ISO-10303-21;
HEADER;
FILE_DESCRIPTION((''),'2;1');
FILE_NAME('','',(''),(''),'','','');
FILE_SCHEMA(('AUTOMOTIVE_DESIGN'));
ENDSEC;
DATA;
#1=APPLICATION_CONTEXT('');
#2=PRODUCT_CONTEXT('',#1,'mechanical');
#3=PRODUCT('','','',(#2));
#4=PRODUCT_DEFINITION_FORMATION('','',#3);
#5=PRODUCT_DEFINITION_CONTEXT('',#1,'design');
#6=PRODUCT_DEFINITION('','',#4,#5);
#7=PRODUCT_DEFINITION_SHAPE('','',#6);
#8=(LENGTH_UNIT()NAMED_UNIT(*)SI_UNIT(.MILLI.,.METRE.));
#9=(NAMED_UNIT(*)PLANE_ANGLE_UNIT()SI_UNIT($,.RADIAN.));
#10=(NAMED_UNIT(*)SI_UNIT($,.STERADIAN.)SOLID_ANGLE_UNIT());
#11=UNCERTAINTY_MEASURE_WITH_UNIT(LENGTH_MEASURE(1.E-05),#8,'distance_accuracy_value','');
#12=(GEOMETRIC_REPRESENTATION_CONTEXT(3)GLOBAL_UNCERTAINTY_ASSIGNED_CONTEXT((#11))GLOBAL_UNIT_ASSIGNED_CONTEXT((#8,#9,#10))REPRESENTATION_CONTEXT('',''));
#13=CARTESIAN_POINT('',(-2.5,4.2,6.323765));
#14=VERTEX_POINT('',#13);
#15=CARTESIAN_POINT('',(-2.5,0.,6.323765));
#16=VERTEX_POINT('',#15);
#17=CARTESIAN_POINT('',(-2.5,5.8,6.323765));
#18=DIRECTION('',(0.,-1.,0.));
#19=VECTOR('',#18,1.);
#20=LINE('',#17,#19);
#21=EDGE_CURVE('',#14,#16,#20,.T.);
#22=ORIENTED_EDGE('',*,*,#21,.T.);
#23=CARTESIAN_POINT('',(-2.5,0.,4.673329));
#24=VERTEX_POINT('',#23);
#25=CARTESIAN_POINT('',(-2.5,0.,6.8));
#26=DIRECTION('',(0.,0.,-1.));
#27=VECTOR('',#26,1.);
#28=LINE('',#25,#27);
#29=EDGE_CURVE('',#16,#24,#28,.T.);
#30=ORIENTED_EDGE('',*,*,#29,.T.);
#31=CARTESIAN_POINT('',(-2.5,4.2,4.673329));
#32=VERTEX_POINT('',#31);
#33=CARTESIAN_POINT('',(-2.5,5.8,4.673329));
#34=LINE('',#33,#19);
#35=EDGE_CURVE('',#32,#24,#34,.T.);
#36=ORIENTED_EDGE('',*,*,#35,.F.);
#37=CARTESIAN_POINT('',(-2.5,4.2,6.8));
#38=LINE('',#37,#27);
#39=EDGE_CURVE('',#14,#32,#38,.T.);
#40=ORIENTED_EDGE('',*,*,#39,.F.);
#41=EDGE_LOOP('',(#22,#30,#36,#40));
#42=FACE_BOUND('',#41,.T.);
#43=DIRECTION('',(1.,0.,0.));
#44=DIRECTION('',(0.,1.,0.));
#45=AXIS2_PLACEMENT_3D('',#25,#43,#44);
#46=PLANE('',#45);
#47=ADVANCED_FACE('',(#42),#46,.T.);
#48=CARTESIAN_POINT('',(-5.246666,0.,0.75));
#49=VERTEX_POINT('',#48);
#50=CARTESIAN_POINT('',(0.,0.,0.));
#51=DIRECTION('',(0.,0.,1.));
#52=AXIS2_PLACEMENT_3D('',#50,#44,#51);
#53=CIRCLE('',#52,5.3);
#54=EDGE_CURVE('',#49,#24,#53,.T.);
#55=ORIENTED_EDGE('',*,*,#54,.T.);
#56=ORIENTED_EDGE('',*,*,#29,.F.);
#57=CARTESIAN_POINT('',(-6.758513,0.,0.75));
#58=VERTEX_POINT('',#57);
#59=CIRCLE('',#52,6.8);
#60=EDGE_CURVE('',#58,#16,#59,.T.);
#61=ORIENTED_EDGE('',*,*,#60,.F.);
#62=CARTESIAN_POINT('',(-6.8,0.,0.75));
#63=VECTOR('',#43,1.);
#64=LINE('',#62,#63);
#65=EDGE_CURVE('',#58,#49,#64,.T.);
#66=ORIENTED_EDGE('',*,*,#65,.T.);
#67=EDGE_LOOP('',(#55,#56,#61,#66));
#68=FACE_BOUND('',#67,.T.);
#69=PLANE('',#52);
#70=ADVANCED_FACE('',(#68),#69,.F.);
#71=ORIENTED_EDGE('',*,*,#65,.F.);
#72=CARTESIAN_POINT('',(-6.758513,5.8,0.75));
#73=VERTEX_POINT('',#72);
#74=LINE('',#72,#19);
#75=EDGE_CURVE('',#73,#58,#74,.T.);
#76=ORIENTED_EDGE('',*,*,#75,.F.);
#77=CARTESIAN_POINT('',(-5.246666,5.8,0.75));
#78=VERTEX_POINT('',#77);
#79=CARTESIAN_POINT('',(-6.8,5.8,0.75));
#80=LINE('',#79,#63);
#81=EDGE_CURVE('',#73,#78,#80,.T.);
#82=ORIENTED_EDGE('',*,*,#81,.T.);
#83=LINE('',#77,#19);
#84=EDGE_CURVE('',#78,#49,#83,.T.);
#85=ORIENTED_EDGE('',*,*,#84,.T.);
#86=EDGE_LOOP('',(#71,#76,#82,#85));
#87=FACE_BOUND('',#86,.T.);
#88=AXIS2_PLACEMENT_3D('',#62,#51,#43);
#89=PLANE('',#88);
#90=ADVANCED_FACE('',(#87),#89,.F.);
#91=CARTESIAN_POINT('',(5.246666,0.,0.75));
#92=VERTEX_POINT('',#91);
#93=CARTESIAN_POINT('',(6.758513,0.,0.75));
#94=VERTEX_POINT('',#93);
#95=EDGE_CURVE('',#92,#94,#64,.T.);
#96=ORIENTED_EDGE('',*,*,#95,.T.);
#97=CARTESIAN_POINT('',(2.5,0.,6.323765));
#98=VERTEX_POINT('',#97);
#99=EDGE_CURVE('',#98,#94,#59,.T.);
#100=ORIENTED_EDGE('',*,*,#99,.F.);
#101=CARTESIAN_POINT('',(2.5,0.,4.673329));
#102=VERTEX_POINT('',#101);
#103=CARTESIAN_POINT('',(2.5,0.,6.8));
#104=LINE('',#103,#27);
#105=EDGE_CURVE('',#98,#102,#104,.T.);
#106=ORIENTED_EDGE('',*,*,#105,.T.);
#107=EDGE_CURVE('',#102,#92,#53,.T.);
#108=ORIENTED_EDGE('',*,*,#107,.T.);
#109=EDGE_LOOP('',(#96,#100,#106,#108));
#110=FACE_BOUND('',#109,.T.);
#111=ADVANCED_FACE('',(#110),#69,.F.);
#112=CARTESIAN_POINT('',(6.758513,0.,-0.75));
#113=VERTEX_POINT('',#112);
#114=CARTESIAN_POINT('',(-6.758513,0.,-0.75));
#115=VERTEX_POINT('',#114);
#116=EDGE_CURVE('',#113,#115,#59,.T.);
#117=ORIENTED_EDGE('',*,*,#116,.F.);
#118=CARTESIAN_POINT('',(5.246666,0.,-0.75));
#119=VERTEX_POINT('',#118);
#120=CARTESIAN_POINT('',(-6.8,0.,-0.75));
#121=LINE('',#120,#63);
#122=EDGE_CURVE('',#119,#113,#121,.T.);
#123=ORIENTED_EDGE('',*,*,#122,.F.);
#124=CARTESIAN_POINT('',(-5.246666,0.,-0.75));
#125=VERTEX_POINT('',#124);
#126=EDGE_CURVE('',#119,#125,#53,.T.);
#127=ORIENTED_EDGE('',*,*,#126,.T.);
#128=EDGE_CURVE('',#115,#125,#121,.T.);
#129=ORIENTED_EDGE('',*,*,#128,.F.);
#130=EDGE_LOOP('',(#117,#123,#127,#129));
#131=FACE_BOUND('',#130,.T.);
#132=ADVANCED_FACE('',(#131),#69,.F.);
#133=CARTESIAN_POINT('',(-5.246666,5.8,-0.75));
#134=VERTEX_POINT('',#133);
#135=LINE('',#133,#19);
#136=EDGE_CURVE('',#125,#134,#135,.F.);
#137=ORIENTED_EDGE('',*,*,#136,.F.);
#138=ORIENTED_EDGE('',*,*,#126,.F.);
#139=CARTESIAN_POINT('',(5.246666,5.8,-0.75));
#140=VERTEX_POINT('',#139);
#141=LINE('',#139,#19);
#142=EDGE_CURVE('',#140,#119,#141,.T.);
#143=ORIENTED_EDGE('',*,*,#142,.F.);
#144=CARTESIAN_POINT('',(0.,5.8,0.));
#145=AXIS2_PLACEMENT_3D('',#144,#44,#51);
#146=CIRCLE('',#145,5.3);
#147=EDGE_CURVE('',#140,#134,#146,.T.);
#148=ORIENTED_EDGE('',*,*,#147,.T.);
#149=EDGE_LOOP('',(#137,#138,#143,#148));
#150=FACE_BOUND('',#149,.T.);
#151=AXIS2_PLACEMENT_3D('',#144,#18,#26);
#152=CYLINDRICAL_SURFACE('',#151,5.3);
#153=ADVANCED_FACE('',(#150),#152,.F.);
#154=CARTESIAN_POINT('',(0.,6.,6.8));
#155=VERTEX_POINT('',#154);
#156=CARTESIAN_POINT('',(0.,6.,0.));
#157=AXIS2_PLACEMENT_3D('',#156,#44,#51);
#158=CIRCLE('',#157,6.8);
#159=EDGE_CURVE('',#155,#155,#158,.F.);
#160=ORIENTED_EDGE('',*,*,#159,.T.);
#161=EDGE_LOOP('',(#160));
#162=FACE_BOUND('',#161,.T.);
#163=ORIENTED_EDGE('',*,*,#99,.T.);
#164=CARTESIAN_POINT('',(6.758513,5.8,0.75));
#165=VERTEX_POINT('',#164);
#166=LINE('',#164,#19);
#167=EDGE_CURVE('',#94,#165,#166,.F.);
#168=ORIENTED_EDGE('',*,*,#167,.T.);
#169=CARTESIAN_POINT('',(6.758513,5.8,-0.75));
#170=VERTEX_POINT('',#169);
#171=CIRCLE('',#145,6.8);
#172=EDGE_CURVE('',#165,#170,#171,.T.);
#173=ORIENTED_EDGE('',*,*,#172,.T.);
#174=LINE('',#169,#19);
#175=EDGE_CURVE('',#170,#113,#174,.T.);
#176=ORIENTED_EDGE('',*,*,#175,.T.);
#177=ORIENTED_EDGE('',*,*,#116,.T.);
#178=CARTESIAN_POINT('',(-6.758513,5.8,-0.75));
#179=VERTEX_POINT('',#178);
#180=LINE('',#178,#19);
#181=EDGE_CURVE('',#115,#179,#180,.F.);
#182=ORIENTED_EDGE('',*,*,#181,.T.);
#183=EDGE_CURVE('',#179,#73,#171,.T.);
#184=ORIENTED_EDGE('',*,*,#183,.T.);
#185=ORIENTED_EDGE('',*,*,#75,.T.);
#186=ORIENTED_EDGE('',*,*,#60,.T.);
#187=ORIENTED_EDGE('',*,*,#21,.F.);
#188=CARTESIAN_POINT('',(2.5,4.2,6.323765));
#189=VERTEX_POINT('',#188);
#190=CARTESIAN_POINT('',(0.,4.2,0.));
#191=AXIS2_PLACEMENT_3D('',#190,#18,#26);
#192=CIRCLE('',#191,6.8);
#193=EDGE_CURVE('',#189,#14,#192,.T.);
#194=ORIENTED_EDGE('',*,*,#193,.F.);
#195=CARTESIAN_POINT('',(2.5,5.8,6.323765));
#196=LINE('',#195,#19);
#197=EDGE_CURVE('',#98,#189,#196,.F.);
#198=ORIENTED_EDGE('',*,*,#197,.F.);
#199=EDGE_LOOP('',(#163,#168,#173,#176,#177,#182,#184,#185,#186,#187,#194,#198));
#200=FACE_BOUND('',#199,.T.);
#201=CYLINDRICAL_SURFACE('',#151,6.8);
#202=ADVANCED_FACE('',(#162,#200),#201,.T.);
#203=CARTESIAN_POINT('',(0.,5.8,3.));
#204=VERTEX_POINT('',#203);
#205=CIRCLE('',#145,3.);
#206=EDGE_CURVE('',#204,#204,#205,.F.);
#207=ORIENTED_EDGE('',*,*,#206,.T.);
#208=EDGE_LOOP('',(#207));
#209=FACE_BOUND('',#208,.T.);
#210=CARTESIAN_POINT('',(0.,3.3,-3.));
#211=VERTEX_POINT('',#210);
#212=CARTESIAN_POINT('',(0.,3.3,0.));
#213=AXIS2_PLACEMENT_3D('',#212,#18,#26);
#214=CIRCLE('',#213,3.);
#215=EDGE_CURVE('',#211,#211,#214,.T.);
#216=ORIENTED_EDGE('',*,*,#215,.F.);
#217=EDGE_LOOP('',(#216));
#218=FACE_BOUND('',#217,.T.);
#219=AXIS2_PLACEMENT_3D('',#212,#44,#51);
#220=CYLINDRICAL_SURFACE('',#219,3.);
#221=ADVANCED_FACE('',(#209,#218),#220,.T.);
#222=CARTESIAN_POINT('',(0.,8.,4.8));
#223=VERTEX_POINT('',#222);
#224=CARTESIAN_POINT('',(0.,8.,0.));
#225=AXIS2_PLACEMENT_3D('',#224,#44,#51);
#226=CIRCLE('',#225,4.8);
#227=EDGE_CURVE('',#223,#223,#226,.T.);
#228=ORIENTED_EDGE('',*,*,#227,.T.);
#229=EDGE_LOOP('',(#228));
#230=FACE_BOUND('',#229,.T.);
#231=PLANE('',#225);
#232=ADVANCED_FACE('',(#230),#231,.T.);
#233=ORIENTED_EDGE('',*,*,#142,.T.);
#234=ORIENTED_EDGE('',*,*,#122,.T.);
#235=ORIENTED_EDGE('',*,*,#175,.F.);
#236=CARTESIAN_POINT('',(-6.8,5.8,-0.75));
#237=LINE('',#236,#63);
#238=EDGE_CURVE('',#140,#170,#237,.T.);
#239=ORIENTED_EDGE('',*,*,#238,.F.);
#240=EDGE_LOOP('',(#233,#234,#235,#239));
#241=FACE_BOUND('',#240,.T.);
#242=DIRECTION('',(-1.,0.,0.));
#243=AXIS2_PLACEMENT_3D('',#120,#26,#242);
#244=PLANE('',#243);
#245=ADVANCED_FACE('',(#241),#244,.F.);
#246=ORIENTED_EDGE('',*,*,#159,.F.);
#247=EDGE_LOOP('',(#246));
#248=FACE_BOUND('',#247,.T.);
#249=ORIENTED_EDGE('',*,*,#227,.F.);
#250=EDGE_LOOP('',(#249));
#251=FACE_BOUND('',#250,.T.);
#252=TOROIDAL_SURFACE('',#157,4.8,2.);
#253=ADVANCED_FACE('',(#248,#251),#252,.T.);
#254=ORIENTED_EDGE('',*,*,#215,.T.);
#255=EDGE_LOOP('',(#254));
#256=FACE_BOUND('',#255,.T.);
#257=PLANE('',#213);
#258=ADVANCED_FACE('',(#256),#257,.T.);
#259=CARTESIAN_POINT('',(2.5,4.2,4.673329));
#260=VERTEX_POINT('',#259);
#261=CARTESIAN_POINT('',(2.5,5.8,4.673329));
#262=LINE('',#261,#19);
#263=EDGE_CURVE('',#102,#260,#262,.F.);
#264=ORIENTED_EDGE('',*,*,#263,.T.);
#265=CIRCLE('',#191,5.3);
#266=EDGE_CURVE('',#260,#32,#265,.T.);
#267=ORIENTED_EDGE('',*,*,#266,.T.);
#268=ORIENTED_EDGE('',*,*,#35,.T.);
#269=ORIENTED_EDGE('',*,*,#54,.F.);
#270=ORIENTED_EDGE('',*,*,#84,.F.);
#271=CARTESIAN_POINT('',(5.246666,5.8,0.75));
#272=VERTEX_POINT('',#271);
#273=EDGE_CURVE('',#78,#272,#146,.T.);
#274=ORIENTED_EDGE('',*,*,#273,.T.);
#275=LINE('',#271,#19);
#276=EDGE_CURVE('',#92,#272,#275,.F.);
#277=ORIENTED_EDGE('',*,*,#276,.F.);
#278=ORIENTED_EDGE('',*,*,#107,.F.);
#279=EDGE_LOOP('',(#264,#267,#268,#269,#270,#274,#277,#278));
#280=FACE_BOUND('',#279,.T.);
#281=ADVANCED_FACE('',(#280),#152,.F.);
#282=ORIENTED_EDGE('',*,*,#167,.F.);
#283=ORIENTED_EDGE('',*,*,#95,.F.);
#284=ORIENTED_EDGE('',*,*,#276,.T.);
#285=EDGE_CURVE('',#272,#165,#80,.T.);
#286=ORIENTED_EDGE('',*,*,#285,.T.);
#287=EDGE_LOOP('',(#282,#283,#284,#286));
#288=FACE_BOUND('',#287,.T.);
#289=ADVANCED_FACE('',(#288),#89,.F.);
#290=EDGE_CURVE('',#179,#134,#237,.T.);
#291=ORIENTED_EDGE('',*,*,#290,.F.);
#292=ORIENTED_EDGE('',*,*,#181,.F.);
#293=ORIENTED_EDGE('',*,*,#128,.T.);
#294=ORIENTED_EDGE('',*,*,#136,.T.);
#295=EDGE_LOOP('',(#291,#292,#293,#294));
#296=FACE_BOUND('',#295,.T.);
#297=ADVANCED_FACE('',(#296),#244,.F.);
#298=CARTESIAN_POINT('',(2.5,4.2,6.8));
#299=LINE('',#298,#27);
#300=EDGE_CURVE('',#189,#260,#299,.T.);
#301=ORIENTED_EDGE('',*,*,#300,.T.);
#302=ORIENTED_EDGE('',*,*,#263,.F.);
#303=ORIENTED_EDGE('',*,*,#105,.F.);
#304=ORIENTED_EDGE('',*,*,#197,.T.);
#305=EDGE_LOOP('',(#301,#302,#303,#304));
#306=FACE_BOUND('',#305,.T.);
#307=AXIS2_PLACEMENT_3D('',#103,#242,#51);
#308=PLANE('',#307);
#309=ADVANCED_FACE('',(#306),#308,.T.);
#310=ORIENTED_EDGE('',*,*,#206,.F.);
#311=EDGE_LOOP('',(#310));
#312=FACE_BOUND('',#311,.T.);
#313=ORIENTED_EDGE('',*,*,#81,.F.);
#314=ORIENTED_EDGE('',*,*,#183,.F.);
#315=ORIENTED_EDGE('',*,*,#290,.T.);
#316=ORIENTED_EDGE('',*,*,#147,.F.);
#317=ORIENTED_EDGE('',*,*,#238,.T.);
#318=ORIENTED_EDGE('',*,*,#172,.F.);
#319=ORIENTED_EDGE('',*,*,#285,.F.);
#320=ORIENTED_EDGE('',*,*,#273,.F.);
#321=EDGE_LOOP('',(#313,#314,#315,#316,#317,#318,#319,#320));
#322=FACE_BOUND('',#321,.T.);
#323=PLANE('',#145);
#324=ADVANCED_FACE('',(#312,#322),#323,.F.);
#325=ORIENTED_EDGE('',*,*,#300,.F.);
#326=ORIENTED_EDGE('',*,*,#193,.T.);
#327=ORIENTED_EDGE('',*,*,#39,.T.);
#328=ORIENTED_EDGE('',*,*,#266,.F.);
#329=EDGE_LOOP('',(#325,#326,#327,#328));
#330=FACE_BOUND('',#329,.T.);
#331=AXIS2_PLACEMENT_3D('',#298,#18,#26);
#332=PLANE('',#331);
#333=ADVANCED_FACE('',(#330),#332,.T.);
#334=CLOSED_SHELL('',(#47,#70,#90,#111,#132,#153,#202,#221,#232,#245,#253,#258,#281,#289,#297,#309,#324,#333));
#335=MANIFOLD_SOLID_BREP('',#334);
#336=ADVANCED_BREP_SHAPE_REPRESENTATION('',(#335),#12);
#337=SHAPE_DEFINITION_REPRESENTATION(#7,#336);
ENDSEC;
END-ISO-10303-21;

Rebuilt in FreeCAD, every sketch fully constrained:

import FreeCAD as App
import Part
import Sketcher
from FreeCAD import Vector
Q = App.Units.Quantity


def edges_at(feature, points):
    """Names of the edges that pass closest to the given points."""
    edges = feature.Shape.Edges
    near = lambda p: min(range(len(edges)), key=lambda i: edges[i].distToShape(Part.Vertex(*p))[0])
    return sorted({f"Edge{near(p) + 1}" for p in points})

doc = App.newDocument("Part")
body = doc.addObject("PartDesign::Body", "Body")

sketch1 = body.newObject("Sketcher::SketchObject", "Sketch")
sketch1.AttachmentSupport = (doc.getObject("XZ_Plane"), [""])
sketch1.MapMode = "FlatFace"
sketch1.addGeometry([
    Part.Circle(Vector(0, 0, 0), Vector(0, 0, 1), 7),
    Part.Circle(Vector(0, 0, 0), Vector(0, 0, 1), 5),
], False)
sketch1.addConstraint([
    Sketcher.Constraint("Coincident", 0, 3, -1, 1),
    Sketcher.Constraint("Coincident", 1, 3, -1, 1),
    Sketcher.Constraint("Diameter", 0, Q("13.6 mm")),
    Sketcher.Constraint("Diameter", 1, Q("10.6 mm")),
])
pad1 = body.newObject("PartDesign::Pad", "Pad")
pad1.Profile = sketch1
pad1.Length = 5.8
pad1.Reversed = True

sketch2 = body.newObject("Sketcher::SketchObject", "Sketch001")
sketch2.AttachmentSupport = (doc.getObject("XZ_Plane"), [""])
sketch2.MapMode = "FlatFace"
sketch2.AttachmentOffset = App.Placement(Vector(0, 0, -5.8), App.Rotation())
sketch2.addGeometry(Part.Circle(Vector(0, 0, 0), Vector(0, 0, 1), 7), False)
sketch2.addConstraint([
    Sketcher.Constraint("Coincident", 0, 3, -1, 1),
    Sketcher.Constraint("Diameter", 0, Q("13.6 mm")),
])
pad2 = body.newObject("PartDesign::Pad", "Pad001")
pad2.Profile = sketch2
pad2.Length = 2.2
pad2.Reversed = True
doc.recompute()

fillet = body.newObject("PartDesign::Fillet", "Fillet")
fillet.Base = (pad2, edges_at(pad2, [(0, 8, -6.8)]))
fillet.Radius = 2

sketch3 = body.newObject("Sketcher::SketchObject", "Sketch002")
sketch3.AttachmentSupport = (doc.getObject("XY_Plane"), [""])
sketch3.MapMode = "FlatFace"
sketch3.addGeometry([
    Part.LineSegment(Vector(-2.5, 4.2, 0), Vector(-2.5, 0, 0)),
    Part.LineSegment(Vector(-2.5, 0, 0), Vector(2.5, 0, 0)),
    Part.LineSegment(Vector(2.5, 0, 0), Vector(2.5, 4.2, 0)),
    Part.LineSegment(Vector(2.5, 4.2, 0), Vector(-2.5, 4.2, 0)),
], False)
sketch3.addConstraint([
    Sketcher.Constraint("Coincident", 0, 2, 1, 1),
    Sketcher.Constraint("Coincident", 1, 2, 2, 1),
    Sketcher.Constraint("Coincident", 2, 2, 3, 1),
    Sketcher.Constraint("Coincident", 3, 2, 0, 1),
    Sketcher.Constraint("Vertical", 0),
    Sketcher.Constraint("Horizontal", 1),
    Sketcher.Constraint("Vertical", 2),
    Sketcher.Constraint("Horizontal", 3),
    Sketcher.Constraint("Symmetric", 0, 2, 1, 2, -1, 1),
    Sketcher.Constraint("DistanceX", 1, 1, 1, 2, Q("5 mm")),
    Sketcher.Constraint("DistanceY", 0, 2, 0, 1, Q("4.2 mm")),
])
pocket1 = body.newObject("PartDesign::Pocket", "Pocket")
pocket1.Profile = sketch3
pocket1.Type = "ThroughAll"
pocket1.Reversed = True

sketch4 = body.newObject("Sketcher::SketchObject", "Sketch003")
sketch4.AttachmentSupport = (doc.getObject("YZ_Plane"), [""])
sketch4.MapMode = "FlatFace"
sketch4.addGeometry([
    Part.LineSegment(Vector(5.8, 0.8, 0), Vector(0, 0.8, 0)),
    Part.LineSegment(Vector(0, 0.8, 0), Vector(0, -0.8, 0)),
    Part.LineSegment(Vector(0, -0.8, 0), Vector(5.8, -0.8, 0)),
    Part.LineSegment(Vector(5.8, -0.8, 0), Vector(5.8, 0.8, 0)),
], False)
sketch4.addConstraint([
    Sketcher.Constraint("Coincident", 0, 2, 1, 1),
    Sketcher.Constraint("Coincident", 1, 2, 2, 1),
    Sketcher.Constraint("Coincident", 2, 2, 3, 1),
    Sketcher.Constraint("Coincident", 3, 2, 0, 1),
    Sketcher.Constraint("Horizontal", 0),
    Sketcher.Constraint("Vertical", 1),
    Sketcher.Constraint("Horizontal", 2),
    Sketcher.Constraint("Vertical", 3),
    Sketcher.Constraint("Symmetric", 0, 2, 1, 2, -1, 1),
    Sketcher.Constraint("DistanceX", 0, 2, 0, 1, Q("5.8 mm")),
    Sketcher.Constraint("DistanceY", 1, 2, 1, 1, Q("1.5 mm")),
])
pocket2 = body.newObject("PartDesign::Pocket", "Pocket001")
pocket2.Profile = sketch4
pocket2.Type = "ThroughAll"
pocket2.Midplane = True

sketch5 = body.newObject("Sketcher::SketchObject", "Sketch004")
sketch5.AttachmentSupport = (doc.getObject("XZ_Plane"), [""])
sketch5.MapMode = "FlatFace"
sketch5.AttachmentOffset = App.Placement(Vector(0, 0, -5.8), App.Rotation())
sketch5.addGeometry(Part.Circle(Vector(0, 0, 0), Vector(0, 0, 1), 3), False)
sketch5.addConstraint([
    Sketcher.Constraint("Coincident", 0, 3, -1, 1),
    Sketcher.Constraint("Diameter", 0, Q("6 mm")),
])
pad3 = body.newObject("PartDesign::Pad", "Pad002")
pad3.Profile = sketch5
pad3.Length = 2.5

doc.recompute()
